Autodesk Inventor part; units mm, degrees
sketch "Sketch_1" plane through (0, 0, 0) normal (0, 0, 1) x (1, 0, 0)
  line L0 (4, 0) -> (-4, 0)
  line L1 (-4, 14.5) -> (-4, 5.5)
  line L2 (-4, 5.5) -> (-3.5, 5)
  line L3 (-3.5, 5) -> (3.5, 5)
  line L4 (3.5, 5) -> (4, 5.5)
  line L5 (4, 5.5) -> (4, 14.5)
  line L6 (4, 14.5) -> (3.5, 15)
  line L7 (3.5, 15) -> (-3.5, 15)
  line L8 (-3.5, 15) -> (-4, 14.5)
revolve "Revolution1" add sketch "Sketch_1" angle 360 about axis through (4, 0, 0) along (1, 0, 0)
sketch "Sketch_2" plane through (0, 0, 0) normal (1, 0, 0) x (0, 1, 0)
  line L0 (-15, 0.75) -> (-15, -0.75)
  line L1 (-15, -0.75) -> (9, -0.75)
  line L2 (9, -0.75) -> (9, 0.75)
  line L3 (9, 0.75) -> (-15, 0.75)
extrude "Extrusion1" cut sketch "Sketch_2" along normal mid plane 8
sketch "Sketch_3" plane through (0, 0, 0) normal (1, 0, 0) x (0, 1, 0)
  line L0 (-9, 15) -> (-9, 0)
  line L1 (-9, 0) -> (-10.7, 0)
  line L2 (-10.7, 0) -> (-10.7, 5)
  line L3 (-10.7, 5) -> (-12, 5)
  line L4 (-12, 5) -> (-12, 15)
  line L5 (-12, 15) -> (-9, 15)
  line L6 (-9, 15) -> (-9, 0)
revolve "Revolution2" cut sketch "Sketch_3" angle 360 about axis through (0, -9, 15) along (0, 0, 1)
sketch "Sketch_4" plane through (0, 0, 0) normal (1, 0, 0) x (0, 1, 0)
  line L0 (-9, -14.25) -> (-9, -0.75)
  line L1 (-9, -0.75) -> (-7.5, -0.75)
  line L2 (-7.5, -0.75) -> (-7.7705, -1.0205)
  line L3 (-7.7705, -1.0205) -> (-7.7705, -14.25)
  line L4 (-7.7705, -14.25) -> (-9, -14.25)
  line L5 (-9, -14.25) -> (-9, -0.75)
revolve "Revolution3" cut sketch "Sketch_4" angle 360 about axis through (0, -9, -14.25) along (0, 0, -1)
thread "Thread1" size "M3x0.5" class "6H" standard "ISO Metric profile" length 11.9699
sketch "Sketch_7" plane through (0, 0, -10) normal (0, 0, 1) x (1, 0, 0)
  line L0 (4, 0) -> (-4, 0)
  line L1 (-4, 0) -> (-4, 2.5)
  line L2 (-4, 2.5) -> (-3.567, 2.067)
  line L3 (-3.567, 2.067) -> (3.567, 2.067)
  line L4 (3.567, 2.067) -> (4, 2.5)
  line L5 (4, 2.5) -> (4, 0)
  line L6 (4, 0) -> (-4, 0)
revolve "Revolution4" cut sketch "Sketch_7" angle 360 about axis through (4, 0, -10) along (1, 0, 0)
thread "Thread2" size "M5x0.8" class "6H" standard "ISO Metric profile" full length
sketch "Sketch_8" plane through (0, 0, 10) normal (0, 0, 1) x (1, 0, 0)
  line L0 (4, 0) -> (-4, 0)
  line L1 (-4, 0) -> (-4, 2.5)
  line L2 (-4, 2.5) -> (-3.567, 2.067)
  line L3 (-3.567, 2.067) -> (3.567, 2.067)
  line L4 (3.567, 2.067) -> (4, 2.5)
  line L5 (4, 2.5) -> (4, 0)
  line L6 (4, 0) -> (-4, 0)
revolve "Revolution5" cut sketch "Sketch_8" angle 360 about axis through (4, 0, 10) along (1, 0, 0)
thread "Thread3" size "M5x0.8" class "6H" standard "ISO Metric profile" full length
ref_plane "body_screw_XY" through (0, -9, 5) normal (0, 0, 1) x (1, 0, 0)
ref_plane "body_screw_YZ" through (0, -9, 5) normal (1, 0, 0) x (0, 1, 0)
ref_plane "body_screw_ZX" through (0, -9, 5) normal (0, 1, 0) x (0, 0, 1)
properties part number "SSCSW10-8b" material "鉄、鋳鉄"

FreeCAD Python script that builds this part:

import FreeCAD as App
import Part
import Sketcher
Q = App.Units.Quantity

doc = App.newDocument("Part")
body = doc.addObject("PartDesign::Body", "Body")

# Sketch on XY plane
sketch1 = doc.addObject("Sketcher::SketchObject", "Sketch")
body.addObject(sketch1)
sketch1.AttachmentSupport = (doc.XY_Plane, [""])
sketch1.MapMode = "FlatFace"
sketch1.addGeometry([
    Part.LineSegment(App.Vector(-3.5, 15, 0), App.Vector(-4, 14.5, 0)),  # 0
    Part.LineSegment(App.Vector(-4, 14.5, 0), App.Vector(-4, 5.5, 0)),  # 1
    Part.LineSegment(App.Vector(-4, 5.5, 0), App.Vector(-3.5, 5, 0)),  # 2
    Part.LineSegment(App.Vector(-3.5, 5, 0), App.Vector(3.5, 5, 0)),  # 3
    Part.LineSegment(App.Vector(3.5, 5, 0), App.Vector(4, 5.5, 0)),  # 4
    Part.LineSegment(App.Vector(4, 5.5, 0), App.Vector(4, 14.5, 0)),  # 5
    Part.LineSegment(App.Vector(4, 14.5, 0), App.Vector(3.5, 15, 0)),  # 6
    Part.LineSegment(App.Vector(3.5, 15, 0), App.Vector(-3.5, 15, 0)),  # 7
], False)
sketch1.addConstraint([
    Sketcher.Constraint("Coincident", 0, 2, 1, 1),
    Sketcher.Constraint("Coincident", 1, 2, 2, 1),
    Sketcher.Constraint("Coincident", 2, 2, 3, 1),
    Sketcher.Constraint("Coincident", 3, 2, 4, 1),
    Sketcher.Constraint("Coincident", 4, 2, 5, 1),
    Sketcher.Constraint("Coincident", 5, 2, 6, 1),
    Sketcher.Constraint("Coincident", 6, 2, 7, 1),
    Sketcher.Constraint("Coincident", 7, 2, 0, 1),
    Sketcher.Constraint("Vertical", 1),
    Sketcher.Constraint("Horizontal", 3),
    Sketcher.Constraint("Vertical", 5),
    Sketcher.Constraint("Horizontal", 7),
    Sketcher.Constraint("Symmetric", 1, 2, 4, 2, -2),
    Sketcher.Constraint("Perpendicular", 0, 2),
    Sketcher.Constraint("Perpendicular", 2, 4),
    Sketcher.Constraint("Perpendicular", 4, 6),
    Sketcher.Constraint("Horizontal", 0, 2, 5, 2),
    Sketcher.Constraint("Vertical", 3, 2, 6, 2),
    Sketcher.Constraint("Vertical", 2, 2, 7, 2),
    Sketcher.Constraint("DistanceX", 3, 1, 3, 2, Q("7 mm")),
    Sketcher.Constraint("DistanceY", 1, 2, 1, 1, Q("9 mm")),
    Sketcher.Constraint("DistanceX", 0, 2, -1, 1, Q("4 mm")),
    Sketcher.Constraint("DistanceY", -1, 1, 2, 2, Q("5 mm")),
])
revolution = doc.addObject("PartDesign::Revolution", "Revolution")
body.addObject(revolution)
revolution.Profile = sketch1
revolution.ReferenceAxis = (sketch1, ["H_Axis"])
revolution.Angle = 360

# Sketch on YZ plane
sketch2 = doc.addObject("Sketcher::SketchObject", "Sketch001")
body.addObject(sketch2)
sketch2.AttachmentSupport = (doc.YZ_Plane, [""])
sketch2.MapMode = "FlatFace"
sketch2.addGeometry([
    Part.LineSegment(App.Vector(9, 0.75, 0), App.Vector(-15, 0.75, 0)),
    Part.LineSegment(App.Vector(-15, 0.75, 0), App.Vector(-15, -0.75, 0)),
    Part.LineSegment(App.Vector(-15, -0.75, 0), App.Vector(9, -0.75, 0)),
    Part.LineSegment(App.Vector(9, -0.75, 0), App.Vector(9, 0.75, 0)),
], False)
sketch2.addConstraint([
    Sketcher.Constraint("Coincident", 0, 2, 1, 1),
    Sketcher.Constraint("Coincident", 1, 2, 2, 1),
    Sketcher.Constraint("Coincident", 2, 2, 3, 1),
    Sketcher.Constraint("Coincident", 3, 2, 0, 1),
    Sketcher.Constraint("Horizontal", 0),
    Sketcher.Constraint("Vertical", 1),
    Sketcher.Constraint("Horizontal", 2),
    Sketcher.Constraint("Vertical", 3),
    Sketcher.Constraint("DistanceX", 0, 2, 0, 1, Q("24 mm")),
    Sketcher.Constraint("DistanceY", 1, 2, 1, 1, Q("1.5 mm")),
    Sketcher.Constraint("DistanceX", 0, 2, -1, 1, Q("15 mm")),
    Sketcher.Constraint("DistanceY", -1, 1, 0, 2, Q("0.75 mm")),
])
pocket1 = doc.addObject("PartDesign::Pocket", "Pocket")
body.addObject(pocket1)
pocket1.Profile = sketch2
pocket1.Length = 8
pocket1.Midplane = True

# Sketch on YZ plane
sketch3 = doc.addObject("Sketcher::SketchObject", "Sketch002")
body.addObject(sketch3)
sketch3.AttachmentSupport = (doc.YZ_Plane, [""])
sketch3.MapMode = "FlatFace"
sketch3.addGeometry([
    Part.LineSegment(App.Vector(-9, 0, 0), App.Vector(-9, 15, 0)),  # 0
    Part.LineSegment(App.Vector(-9, 15, 0), App.Vector(-12, 15, 0)),  # 1
    Part.LineSegment(App.Vector(-12, 15, 0), App.Vector(-12, 5, 0)),  # 2
    Part.LineSegment(App.Vector(-12, 5, 0), App.Vector(-10.7, 5, 0)),  # 3
    Part.LineSegment(App.Vector(-10.7, 5, 0), App.Vector(-10.7, 0, 0)),  # 4
    Part.LineSegment(App.Vector(-10.7, 0, 0), App.Vector(-9, 0, 0)),  # 5
], False)
sketch3.addGeometry(Part.LineSegment(App.Vector(-9, 0, 0), App.Vector(-9, 15, 0)), True)  # axis
sketch3.addConstraint([
    Sketcher.Constraint("Coincident", 0, 2, 1, 1),
    Sketcher.Constraint("Coincident", 1, 2, 2, 1),
    Sketcher.Constraint("Coincident", 2, 2, 3, 1),
    Sketcher.Constraint("Coincident", 3, 2, 4, 1),
    Sketcher.Constraint("Coincident", 4, 2, 5, 1),
    Sketcher.Constraint("Coincident", 5, 2, 0, 1),
    Sketcher.Constraint("Vertical", 0),
    Sketcher.Constraint("Horizontal", 1),
    Sketcher.Constraint("Vertical", 2),
    Sketcher.Constraint("Horizontal", 3),
    Sketcher.Constraint("Vertical", 4),
    Sketcher.Constraint("Horizontal", 5),
    Sketcher.Constraint("Vertical", 6),
    Sketcher.Constraint("Coincident", 6, 1, 5, 2),
    Sketcher.Constraint("PointOnObject", 4, 2, -1),
    Sketcher.Constraint("Horizontal", 1, 2, 6, 2),
    Sketcher.Constraint("DistanceX", 1, 2, 1, 1, Q("3 mm")),
    Sketcher.Constraint("DistanceY", 0, 1, 0, 2, Q("15 mm")),
    Sketcher.Constraint("DistanceY", 2, 2, 2, 1, Q("10 mm")),
    Sketcher.Constraint("DistanceX", 3, 1, 3, 2, Q("1.3 mm")),
    Sketcher.Constraint("DistanceX", 0, 2, -1, 1, Q("9 mm")),
])
groove = doc.addObject("PartDesign::Groove", "Groove")
body.addObject(groove)
groove.Profile = sketch3
groove.ReferenceAxis = (sketch3, ["Axis0"])
groove.Angle = 360

# Sketch on YZ plane
sketch4 = doc.addObject("Sketcher::SketchObject", "Sketch003")
body.addObject(sketch4)
sketch4.AttachmentSupport = (doc.YZ_Plane, [""])
sketch4.MapMode = "FlatFace"
sketch4.addGeometry([
    Part.LineSegment(App.Vector(-9, -0.75, 0), App.Vector(-9, -14.25, 0)),  # 0
    Part.LineSegment(App.Vector(-9, -14.25, 0), App.Vector(-7.7705, -14.25, 0)),  # 1
    Part.LineSegment(App.Vector(-7.7705, -14.25, 0), App.Vector(-7.7705, -1.0205, 0)),  # 2
    Part.LineSegment(App.Vector(-7.7705, -1.0205, 0), App.Vector(-7.5, -0.75, 0)),  # 3
    Part.LineSegment(App.Vector(-7.5, -0.75, 0), App.Vector(-9, -0.75, 0)),  # 4
], False)
sketch4.addGeometry(Part.LineSegment(App.Vector(-9, -0.75, 0), App.Vector(-9, -14.25, 0)), True)  # axis
sketch4.addConstraint([
    Sketcher.Constraint("Coincident", 0, 2, 1, 1),
    Sketcher.Constraint("Coincident", 1, 2, 2, 1),
    Sketcher.Constraint("Coincident", 2, 2, 3, 1),
    Sketcher.Constraint("Coincident", 3, 2, 4, 1),
    Sketcher.Constraint("Coincident", 4, 2, 0, 1),
    Sketcher.Constraint("Vertical", 0),
    Sketcher.Constraint("Horizontal", 1),
    Sketcher.Constraint("Vertical", 2),
    Sketcher.Constraint("Horizontal", 4),
    Sketcher.Constraint("Vertical", 5),
    Sketcher.Constraint("Coincident", 5, 1, 4, 2),
    Sketcher.Constraint("Horizontal", 1, 2, 5, 2),
    Sketcher.Constraint("Angle", 3, Q("45 deg")),
    Sketcher.Constraint("DistanceX", 4, 2, 4, 1, Q("1.5 mm")),
    Sketcher.Constraint("DistanceY", 0, 2, 0, 1, Q("13.5 mm")),
    Sketcher.Constraint("DistanceX", 0, 2, -1, 1, Q("9 mm")),
    Sketcher.Constraint("DistanceY", 0, 2, -1, 1, Q("14.25 mm")),
    Sketcher.Constraint("DistanceX", 1, 1, 1, 2, Q("1.2295 mm")),
])
groove2 = doc.addObject("PartDesign::Groove", "Groove001")
body.addObject(groove2)
groove2.Profile = sketch4
groove2.ReferenceAxis = (sketch4, ["Axis0"])
groove2.Angle = 360

# Sketch on XY plane
sketch5 = doc.addObject("Sketcher::SketchObject", "Sketch004")
body.addObject(sketch5)
sketch5.AttachmentSupport = (doc.XY_Plane, [""])
sketch5.MapMode = "FlatFace"
sketch5.AttachmentOffset = App.Placement(App.Vector(0, 0, -10), App.Rotation())
sketch5.addGeometry([
    Part.LineSegment(App.Vector(-4, 0, 0), App.Vector(4, 0, 0)),  # 0
    Part.LineSegment(App.Vector(4, 0, 0), App.Vector(4, 2.5, 0)),  # 1
    Part.LineSegment(App.Vector(4, 2.5, 0), App.Vector(3.567, 2.067, 0)),  # 2
    Part.LineSegment(App.Vector(3.567, 2.067, 0), App.Vector(-3.567, 2.067, 0)),  # 3
    Part.LineSegment(App.Vector(-3.567, 2.067, 0), App.Vector(-4, 2.5, 0)),  # 4
    Part.LineSegment(App.Vector(-4, 2.5, 0), App.Vector(-4, 0, 0)),  # 5
], False)
sketch5.addConstraint([
    Sketcher.Constraint("Coincident", 0, 2, 1, 1),
    Sketcher.Constraint("Coincident", 1, 2, 2, 1),
    Sketcher.Constraint("Coincident", 2, 2, 3, 1),
    Sketcher.Constraint("Coincident", 3, 2, 4, 1),
    Sketcher.Constraint("Coincident", 4, 2, 5, 1),
    Sketcher.Constraint("Coincident", 5, 2, 0, 1),
    Sketcher.Constraint("Horizontal", 0),
    Sketcher.Constraint("Vertical", 1),
    Sketcher.Constraint("Horizontal", 3),
    Sketcher.Constraint("Vertical", 5),
    Sketcher.Constraint("Symmetric", 0, 2, 5, 2, -1, 1),
    Sketcher.Constraint("Perpendicular", 2, 4),
    Sketcher.Constraint("Horizontal", 1, 2, 4, 2),
    Sketcher.Constraint("Equal", 2, 4),
    Sketcher.Constraint("DistanceX", 0, 1, 0, 2, Q("8 mm")),
    Sketcher.Constraint("DistanceY", 1, 1, 1, 2, Q("2.5 mm")),
    Sketcher.Constraint("DistanceX", 3, 2, 3, 1, Q("7.134 mm")),
])
groove3 = doc.addObject("PartDesign::Groove", "Groove002")
body.addObject(groove3)
groove3.Profile = sketch5
groove3.ReferenceAxis = (sketch5, ["H_Axis"])
groove3.Angle = 360

# Sketch on XY plane
sketch6 = doc.addObject("Sketcher::SketchObject", "Sketch005")
body.addObject(sketch6)
sketch6.AttachmentSupport = (doc.XY_Plane, [""])
sketch6.MapMode = "FlatFace"
sketch6.AttachmentOffset = App.Placement(App.Vector(0, 0, 10), App.Rotation())
sketch6.addGeometry([
    Part.LineSegment(App.Vector(-4, 0, 0), App.Vector(4, 0, 0)),  # 0
    Part.LineSegment(App.Vector(4, 0, 0), App.Vector(4, 2.5, 0)),  # 1
    Part.LineSegment(App.Vector(4, 2.5, 0), App.Vector(3.567, 2.067, 0)),  # 2
    Part.LineSegment(App.Vector(3.567, 2.067, 0), App.Vector(-3.567, 2.067, 0)),  # 3
    Part.LineSegment(App.Vector(-3.567, 2.067, 0), App.Vector(-4, 2.5, 0)),  # 4
    Part.LineSegment(App.Vector(-4, 2.5, 0), App.Vector(-4, 0, 0)),  # 5
], False)
sketch6.addConstraint([
    Sketcher.Constraint("Coincident", 0, 2, 1, 1),
    Sketcher.Constraint("Coincident", 1, 2, 2, 1),
    Sketcher.Constraint("Coincident", 2, 2, 3, 1),
    Sketcher.Constraint("Coincident", 3, 2, 4, 1),
    Sketcher.Constraint("Coincident", 4, 2, 5, 1),
    Sketcher.Constraint("Coincident", 5, 2, 0, 1),
    Sketcher.Constraint("Horizontal", 0),
    Sketcher.Constraint("Vertical", 1),
    Sketcher.Constraint("Horizontal", 3),
    Sketcher.Constraint("Vertical", 5),
    Sketcher.Constraint("Symmetric", 0, 2, 5, 2, -1, 1),
    Sketcher.Constraint("Perpendicular", 2, 4),
    Sketcher.Constraint("Horizontal", 1, 2, 4, 2),
    Sketcher.Constraint("Equal", 2, 4),
    Sketcher.Constraint("DistanceX", 0, 1, 0, 2, Q("8 mm")),
    Sketcher.Constraint("DistanceY", 1, 1, 1, 2, Q("2.5 mm")),
    Sketcher.Constraint("DistanceX", 3, 2, 3, 1, Q("7.134 mm")),
])
groove4 = doc.addObject("PartDesign::Groove", "Groove003")
body.addObject(groove4)
groove4.Profile = sketch6
groove4.ReferenceAxis = (sketch6, ["H_Axis"])
groove4.Angle = 360

doc.recompute()
